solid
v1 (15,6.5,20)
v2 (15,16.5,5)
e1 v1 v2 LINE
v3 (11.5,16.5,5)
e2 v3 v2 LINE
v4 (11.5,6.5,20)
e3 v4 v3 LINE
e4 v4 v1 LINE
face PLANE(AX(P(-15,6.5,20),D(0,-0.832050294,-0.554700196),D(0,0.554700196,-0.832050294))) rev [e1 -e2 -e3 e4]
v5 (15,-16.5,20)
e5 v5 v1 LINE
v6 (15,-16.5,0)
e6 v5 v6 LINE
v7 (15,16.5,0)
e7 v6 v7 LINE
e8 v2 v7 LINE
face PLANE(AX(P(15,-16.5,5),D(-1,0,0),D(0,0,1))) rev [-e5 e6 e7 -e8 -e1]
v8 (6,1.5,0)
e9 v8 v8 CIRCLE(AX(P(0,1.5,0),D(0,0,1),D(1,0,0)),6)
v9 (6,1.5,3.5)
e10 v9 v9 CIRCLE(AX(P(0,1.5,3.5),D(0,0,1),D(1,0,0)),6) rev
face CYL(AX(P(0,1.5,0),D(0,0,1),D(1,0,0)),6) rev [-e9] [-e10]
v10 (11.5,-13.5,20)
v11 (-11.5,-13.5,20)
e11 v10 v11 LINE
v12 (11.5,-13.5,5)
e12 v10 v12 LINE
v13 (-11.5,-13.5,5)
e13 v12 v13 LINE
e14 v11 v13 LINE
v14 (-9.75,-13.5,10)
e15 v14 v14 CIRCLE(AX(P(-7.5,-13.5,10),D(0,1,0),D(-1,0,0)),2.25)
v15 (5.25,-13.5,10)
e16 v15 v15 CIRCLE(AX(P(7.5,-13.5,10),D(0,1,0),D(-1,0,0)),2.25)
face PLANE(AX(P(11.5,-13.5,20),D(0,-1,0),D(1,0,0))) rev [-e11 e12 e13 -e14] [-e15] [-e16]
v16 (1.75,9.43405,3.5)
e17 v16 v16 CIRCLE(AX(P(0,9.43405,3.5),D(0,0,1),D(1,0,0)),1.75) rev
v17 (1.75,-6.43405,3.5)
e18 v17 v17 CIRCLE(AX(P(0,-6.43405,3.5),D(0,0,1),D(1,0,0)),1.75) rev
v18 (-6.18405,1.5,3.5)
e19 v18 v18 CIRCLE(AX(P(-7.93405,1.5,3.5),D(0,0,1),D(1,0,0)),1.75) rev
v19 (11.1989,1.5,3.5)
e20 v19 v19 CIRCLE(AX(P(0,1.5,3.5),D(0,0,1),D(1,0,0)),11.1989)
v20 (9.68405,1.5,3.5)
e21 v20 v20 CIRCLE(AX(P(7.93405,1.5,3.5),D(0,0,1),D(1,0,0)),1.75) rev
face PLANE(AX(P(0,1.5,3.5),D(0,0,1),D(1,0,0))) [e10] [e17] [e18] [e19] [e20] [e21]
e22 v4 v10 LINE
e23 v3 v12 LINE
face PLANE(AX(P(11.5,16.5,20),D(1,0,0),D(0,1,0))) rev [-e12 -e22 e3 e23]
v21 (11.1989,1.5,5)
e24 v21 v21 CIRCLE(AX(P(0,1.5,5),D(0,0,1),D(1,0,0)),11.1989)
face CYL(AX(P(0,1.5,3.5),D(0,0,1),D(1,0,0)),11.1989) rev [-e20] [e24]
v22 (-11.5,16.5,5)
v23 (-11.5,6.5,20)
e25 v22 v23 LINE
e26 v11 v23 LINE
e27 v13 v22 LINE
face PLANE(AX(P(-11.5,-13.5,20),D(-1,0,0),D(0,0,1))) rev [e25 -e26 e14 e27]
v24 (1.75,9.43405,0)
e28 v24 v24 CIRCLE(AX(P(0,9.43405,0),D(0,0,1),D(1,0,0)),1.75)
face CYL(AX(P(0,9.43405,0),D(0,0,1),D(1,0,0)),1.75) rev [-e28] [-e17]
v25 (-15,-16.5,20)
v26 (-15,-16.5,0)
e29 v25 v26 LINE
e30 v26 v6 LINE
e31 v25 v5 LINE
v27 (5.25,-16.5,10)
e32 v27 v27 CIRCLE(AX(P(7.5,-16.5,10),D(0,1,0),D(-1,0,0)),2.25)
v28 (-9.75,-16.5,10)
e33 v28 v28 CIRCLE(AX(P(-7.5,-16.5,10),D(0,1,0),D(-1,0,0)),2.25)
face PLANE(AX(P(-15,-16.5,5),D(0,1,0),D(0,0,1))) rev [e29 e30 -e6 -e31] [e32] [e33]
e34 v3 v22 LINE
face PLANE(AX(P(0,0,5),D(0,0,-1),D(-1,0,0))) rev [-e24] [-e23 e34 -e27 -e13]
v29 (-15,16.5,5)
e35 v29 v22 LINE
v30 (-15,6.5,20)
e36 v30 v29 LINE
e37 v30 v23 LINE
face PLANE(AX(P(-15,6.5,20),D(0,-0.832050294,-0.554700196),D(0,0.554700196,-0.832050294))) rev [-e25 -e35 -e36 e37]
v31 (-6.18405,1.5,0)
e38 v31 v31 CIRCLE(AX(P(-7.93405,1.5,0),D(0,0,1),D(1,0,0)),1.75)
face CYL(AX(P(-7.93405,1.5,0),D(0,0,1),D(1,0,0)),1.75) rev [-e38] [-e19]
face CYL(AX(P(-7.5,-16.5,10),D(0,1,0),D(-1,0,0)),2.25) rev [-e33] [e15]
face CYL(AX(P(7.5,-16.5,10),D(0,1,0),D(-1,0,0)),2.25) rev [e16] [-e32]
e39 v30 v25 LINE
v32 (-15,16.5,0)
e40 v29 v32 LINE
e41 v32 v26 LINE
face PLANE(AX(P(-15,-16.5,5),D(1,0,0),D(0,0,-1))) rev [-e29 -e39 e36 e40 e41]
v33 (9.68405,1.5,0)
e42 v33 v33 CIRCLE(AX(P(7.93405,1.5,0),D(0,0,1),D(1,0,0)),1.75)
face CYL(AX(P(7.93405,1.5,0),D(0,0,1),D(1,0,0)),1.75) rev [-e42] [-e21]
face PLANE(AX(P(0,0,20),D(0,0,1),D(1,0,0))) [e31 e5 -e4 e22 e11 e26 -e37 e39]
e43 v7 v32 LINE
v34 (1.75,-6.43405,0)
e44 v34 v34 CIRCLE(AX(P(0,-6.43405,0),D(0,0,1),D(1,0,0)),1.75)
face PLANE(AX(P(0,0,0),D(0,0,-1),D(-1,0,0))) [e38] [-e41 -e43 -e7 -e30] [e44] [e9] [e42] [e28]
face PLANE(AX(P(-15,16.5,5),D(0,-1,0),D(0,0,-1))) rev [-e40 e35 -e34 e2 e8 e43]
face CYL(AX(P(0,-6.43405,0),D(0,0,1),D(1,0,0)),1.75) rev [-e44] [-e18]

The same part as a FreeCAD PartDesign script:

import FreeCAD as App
import Part
import Sketcher
Q = App.Units.Quantity


def add_polygon(sketch, points):
    """Adds a closed chain of lines whose ends are joined by coincident constraints."""
    first, n = sketch.GeometryCount, len(points)
    for a, b in zip(points, points[1:] + points[:1]):
        sketch.addGeometry(Part.LineSegment(App.Vector(*a, 0), App.Vector(*b, 0)), False)
    for i in range(n):
        sketch.addConstraint(Sketcher.Constraint("Coincident", first + i, 2, first + (i + 1) % n, 1))

doc = App.newDocument("Part")
body = doc.addObject("PartDesign::Body", "Body")

# Sketch on XY plane
sketch1 = doc.addObject("Sketcher::SketchObject", "Sketch")
body.addObject(sketch1)
sketch1.AttachmentSupport = (doc.XY_Plane, [""])
sketch1.MapMode = "FlatFace"
add_polygon(sketch1, [(-15, 16.5), (-15, -16.5), (15, -16.5), (15, 16.5)])  # lines 0-3
sketch1.addConstraint([
    Sketcher.Constraint("Vertical", 0),
    Sketcher.Constraint("Horizontal", 1),
    Sketcher.Constraint("Vertical", 2),
    Sketcher.Constraint("Horizontal", 3),
    Sketcher.Constraint("Symmetric", 0, 2, 2, 2, -1, 1),
    Sketcher.Constraint("DistanceX", 1, 1, 1, 2, Q("30 mm")),
    Sketcher.Constraint("DistanceY", 0, 2, 0, 1, Q("33 mm")),
])
pad1 = doc.addObject("PartDesign::Pad", "Pad")
body.addObject(pad1)
pad1.Profile = sketch1
pad1.Length = 5

# Sketch on XY plane
sketch2 = doc.addObject("Sketcher::SketchObject", "Sketch001")
body.addObject(sketch2)
sketch2.AttachmentSupport = (doc.XY_Plane, [""])
sketch2.MapMode = "FlatFace"
sketch2.AttachmentOffset = App.Placement(App.Vector(0, 0, 5), App.Rotation())
add_polygon(sketch2, [(-15, 16.5), (-15, -16.5), (15, -16.5), (15, 16.5), (11.5, 16.5), (11.5, -13.5), (-11.5, -13.5), (-11.5, 16.5)])  # lines 0-7
sketch2.addConstraint([
    Sketcher.Constraint("Vertical", 0),
    Sketcher.Constraint("Horizontal", 1),
    Sketcher.Constraint("Vertical", 2),
    Sketcher.Constraint("Horizontal", 3),
    Sketcher.Constraint("Vertical", 4),
    Sketcher.Constraint("Horizontal", 5),
    Sketcher.Constraint("Vertical", 6),
    Sketcher.Constraint("Horizontal", 7),
    Sketcher.Constraint("Symmetric", 0, 2, 2, 2, -1, 1),
    Sketcher.Constraint("Symmetric", 3, 2, 6, 2, -2),
    Sketcher.Constraint("Equal", 1, 4),
    Sketcher.Constraint("DistanceX", 1, 1, 1, 2, Q("30 mm")),
    Sketcher.Constraint("DistanceX", 5, 2, 5, 1, Q("23 mm")),
    Sketcher.Constraint("DistanceY", 0, 2, 0, 1, Q("33 mm")),
])
pad2 = doc.addObject("PartDesign::Pad", "Pad001")
body.addObject(pad2)
pad2.Profile = sketch2
pad2.Length = 15

# Sketch on YZ plane
sketch3 = doc.addObject("Sketcher::SketchObject", "Sketch002")
body.addObject(sketch3)
sketch3.AttachmentSupport = (doc.YZ_Plane, [""])
sketch3.MapMode = "FlatFace"
sketch3.AttachmentOffset = App.Placement(App.Vector(0, 0, 15), App.Rotation())
add_polygon(sketch3, [(16.5, 5), (16.5, 20), (6.5, 20)])  # lines 0-2
sketch3.addConstraint([
    Sketcher.Constraint("Vertical", 0),
    Sketcher.Constraint("Horizontal", 1),
    Sketcher.Constraint("DistanceX", 1, 2, 1, 1, Q("10 mm")),
    Sketcher.Constraint("DistanceY", 0, 1, 0, 2, Q("15 mm")),
    Sketcher.Constraint("DistanceY", -1, 1, 0, 2, Q("20 mm")),
    Sketcher.Constraint("DistanceX", -1, 1, 0, 2, Q("16.5 mm")),
])
pocket1 = doc.addObject("PartDesign::Pocket", "Pocket")
body.addObject(pocket1)
pocket1.Profile = sketch3
pocket1.Type = "ThroughAll"

# Sketch on XY plane
sketch4 = doc.addObject("Sketcher::SketchObject", "Sketch003")
body.addObject(sketch4)
sketch4.AttachmentSupport = (doc.XY_Plane, [""])
sketch4.MapMode = "FlatFace"
sketch4.AttachmentOffset = App.Placement(App.Vector(0, 0, 5), App.Rotation())
sketch4.addGeometry([
    Part.Circle(App.Vector(0, 1.5, 0), App.Vector(0, 0, 1), 6),  # 0
    Part.Circle(App.Vector(0, 9.43405, 0), App.Vector(0, 0, 1), 1.75),  # 1
    Part.Circle(App.Vector(-7.93405, 1.5, 0), App.Vector(0, 0, 1), 1.75),  # 2
    Part.Circle(App.Vector(7.93405, 1.5, 0), App.Vector(0, 0, 1), 1.75),  # 3
    Part.Circle(App.Vector(0, -6.43405, 0), App.Vector(0, 0, 1), 1.75),  # 4
], False)
sketch4.addConstraint([
    Sketcher.Constraint("Equal", 1, 2),
    Sketcher.Constraint("Equal", 2, 3),
    Sketcher.Constraint("Equal", 3, 4),
    Sketcher.Constraint("Symmetric", 2, 3, 3, 3, -2),
    Sketcher.Constraint("PointOnObject", 0, 3, -2),
    Sketcher.Constraint("PointOnObject", 1, 3, -2),
    Sketcher.Constraint("PointOnObject", 4, 3, -2),
    Sketcher.Constraint("Horizontal", 0, 3, 2, 3),
    Sketcher.Constraint("Diameter", 0, Q("12 mm")),
    Sketcher.Constraint("Diameter", 1, Q("3.5 mm")),
    Sketcher.Constraint("DistanceY", -1, 1, 0, 3, Q("1.5 mm")),
    Sketcher.Constraint("DistanceX", 2, 3, 3, 3, Q("15.8681 mm")),
    Sketcher.Constraint("DistanceY", 4, 3, 1, 3, Q("15.8681 mm")),
    Sketcher.Constraint("DistanceY", -1, 1, 1, 3, Q("9.43405 mm")),
])
pocket2 = doc.addObject("PartDesign::Pocket", "Pocket001")
body.addObject(pocket2)
pocket2.Profile = sketch4
pocket2.Type = "ThroughAll"

# Sketch on XY plane
sketch5 = doc.addObject("Sketcher::SketchObject", "Sketch004")
body.addObject(sketch5)
sketch5.AttachmentSupport = (doc.XY_Plane, [""])
sketch5.MapMode = "FlatFace"
sketch5.AttachmentOffset = App.Placement(App.Vector(0, 0, 5), App.Rotation())
sketch5.addGeometry(Part.Circle(App.Vector(0, 1.5, 0), App.Vector(0, 0, 1), 11.1989), False)
sketch5.addConstraint([
    Sketcher.Constraint("PointOnObject", 0, 3, -2),
    Sketcher.Constraint("Diameter", 0, Q("22.3978 mm")),
    Sketcher.Constraint("DistanceY", -1, 1, 0, 3, Q("1.5 mm")),
])
pocket3 = doc.addObject("PartDesign::Pocket", "Pocket002")
body.addObject(pocket3)
pocket3.Profile = sketch5
pocket3.Length = 1.5

# Sketch on XZ plane
sketch6 = doc.addObject("Sketcher::SketchObject", "Sketch005")
body.addObject(sketch6)
sketch6.AttachmentSupport = (doc.XZ_Plane, [""])
sketch6.MapMode = "FlatFace"
sketch6.AttachmentOffset = App.Placement(App.Vector(0, 0, 13.5), App.Rotation())
sketch6.addGeometry([
    Part.Circle(App.Vector(-7.5, 10, 0), App.Vector(0, 0, 1), 2.25),
    Part.Circle(App.Vector(7.5, 10, 0), App.Vector(0, 0, 1), 2.25),
], False)
sketch6.addConstraint([
    Sketcher.Constraint("Equal", 0, 1),
    Sketcher.Constraint("Symmetric", 0, 3, 1, 3, -2),
    Sketcher.Constraint("Diameter", 0, Q("4.5 mm")),
    Sketcher.Constraint("DistanceY", -1, 1, 0, 3, Q("10 mm")),
    Sketcher.Constraint("DistanceX", 0, 3, 1, 3, Q("15 mm")),
])
pocket4 = doc.addObject("PartDesign::Pocket", "Pocket003")
body.addObject(pocket4)
pocket4.Profile = sketch6
pocket4.Type = "ThroughAll"
pocket4.Reversed = True

doc.recompute()
